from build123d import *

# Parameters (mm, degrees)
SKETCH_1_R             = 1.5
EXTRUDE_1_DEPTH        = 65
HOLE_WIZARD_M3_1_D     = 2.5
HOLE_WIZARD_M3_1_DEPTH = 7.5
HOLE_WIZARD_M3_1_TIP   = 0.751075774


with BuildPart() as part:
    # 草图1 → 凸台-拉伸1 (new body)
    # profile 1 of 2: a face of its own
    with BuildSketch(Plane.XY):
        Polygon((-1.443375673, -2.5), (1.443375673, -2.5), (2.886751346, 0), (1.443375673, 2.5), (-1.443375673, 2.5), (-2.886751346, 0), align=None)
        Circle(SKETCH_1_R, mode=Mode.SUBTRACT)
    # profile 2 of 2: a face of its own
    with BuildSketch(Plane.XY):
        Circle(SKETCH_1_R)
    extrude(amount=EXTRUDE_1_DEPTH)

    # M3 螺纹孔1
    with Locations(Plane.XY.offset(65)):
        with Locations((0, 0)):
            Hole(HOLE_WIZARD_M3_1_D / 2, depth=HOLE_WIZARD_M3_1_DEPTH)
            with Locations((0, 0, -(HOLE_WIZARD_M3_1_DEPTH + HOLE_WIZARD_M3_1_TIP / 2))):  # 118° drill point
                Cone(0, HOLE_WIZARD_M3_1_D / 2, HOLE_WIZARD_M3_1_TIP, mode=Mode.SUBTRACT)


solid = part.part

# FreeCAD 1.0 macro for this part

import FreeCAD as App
import Part
import Sketcher
from FreeCAD import Vector
Q = App.Units.Quantity


def add_polygon(sketch, points):
    """Adds a closed chain of lines whose ends are joined by coincident constraints."""
    first, n = sketch.GeometryCount, len(points)
    for a, b in zip(points, points[1:] + points[:1]):
        sketch.addGeometry(Part.LineSegment(App.Vector(*a, 0), App.Vector(*b, 0)), False)
    for i in range(n):
        sketch.addConstraint(Sketcher.Constraint("Coincident", first + i, 2, first + (i + 1) % n, 1))

doc = App.newDocument("Part")
body = doc.addObject("PartDesign::Body", "Body")

sketch1 = body.newObject("Sketcher::SketchObject", "Sketch")
sketch1.AttachmentSupport = (doc.getObject("XY_Plane"), [""])
sketch1.MapMode = "FlatFace"
add_polygon(sketch1, [(-1.4, -2.5), (1.4, -2.5), (2.9, 0), (1.4, 2.5), (-1.4, 2.5), (-2.9, 0)])
sketch1.addConstraint(Sketcher.Constraint("Horizontal", 0))
sketch1.addConstraint(Sketcher.Constraint("Horizontal", 3))
sketch1.addConstraint(Sketcher.Constraint("Symmetric", 0, 2, 3, 2, -1, 1))
sketch1.addConstraint(Sketcher.Constraint("Symmetric", 1, 2, 4, 2, -1, 1))
sketch1.addConstraint(Sketcher.Constraint("PointOnObject", 1, 2, -1))
sketch1.addConstraint(Sketcher.Constraint("Parallel", 2, 5))
sketch1.addConstraint(Sketcher.Constraint("Vertical", 0, 2, 2, 2))
sketch1.addConstraint(Sketcher.Constraint("Angle", 1, Q("60 deg")))
sketch1.addConstraint(Sketcher.Constraint("DistanceY", 0, 2, 2, 2, Q("5 mm")))
sketch1.addConstraint(Sketcher.Constraint("DistanceX", 0, 1, 0, 2, Q("2.886751 mm")))
pad1 = body.newObject("PartDesign::Pad", "Pad")
pad1.Profile = sketch1
pad1.Length = 65

sketch2 = body.newObject("Sketcher::SketchObject", "Sketch001")
sketch2.AttachmentSupport = (doc.getObject("XY_Plane"), [""])
sketch2.MapMode = "FlatFace"
sketch2.AttachmentOffset = App.Placement(Vector(0, 0, 65), App.Rotation())
sketch2.addGeometry(Part.Circle(Vector(0, 0, 0), Vector(0, 0, 1), 1.2), False)
sketch2.addConstraint(Sketcher.Constraint("Coincident", 0, 3, -1, 1))
sketch2.addConstraint(Sketcher.Constraint("Diameter", 0, Q("2.5 mm")))
doc.recompute()
hole = body.newObject("PartDesign::Hole", "Hole")
hole.Profile = sketch2
hole.ThreadType = "None"
hole.Diameter = 2.5
hole.DepthType = "Dimension"
hole.Depth = 7.5
hole.DrillPoint = "Angled"
hole.DrillPointAngle = 118

doc.recompute()
